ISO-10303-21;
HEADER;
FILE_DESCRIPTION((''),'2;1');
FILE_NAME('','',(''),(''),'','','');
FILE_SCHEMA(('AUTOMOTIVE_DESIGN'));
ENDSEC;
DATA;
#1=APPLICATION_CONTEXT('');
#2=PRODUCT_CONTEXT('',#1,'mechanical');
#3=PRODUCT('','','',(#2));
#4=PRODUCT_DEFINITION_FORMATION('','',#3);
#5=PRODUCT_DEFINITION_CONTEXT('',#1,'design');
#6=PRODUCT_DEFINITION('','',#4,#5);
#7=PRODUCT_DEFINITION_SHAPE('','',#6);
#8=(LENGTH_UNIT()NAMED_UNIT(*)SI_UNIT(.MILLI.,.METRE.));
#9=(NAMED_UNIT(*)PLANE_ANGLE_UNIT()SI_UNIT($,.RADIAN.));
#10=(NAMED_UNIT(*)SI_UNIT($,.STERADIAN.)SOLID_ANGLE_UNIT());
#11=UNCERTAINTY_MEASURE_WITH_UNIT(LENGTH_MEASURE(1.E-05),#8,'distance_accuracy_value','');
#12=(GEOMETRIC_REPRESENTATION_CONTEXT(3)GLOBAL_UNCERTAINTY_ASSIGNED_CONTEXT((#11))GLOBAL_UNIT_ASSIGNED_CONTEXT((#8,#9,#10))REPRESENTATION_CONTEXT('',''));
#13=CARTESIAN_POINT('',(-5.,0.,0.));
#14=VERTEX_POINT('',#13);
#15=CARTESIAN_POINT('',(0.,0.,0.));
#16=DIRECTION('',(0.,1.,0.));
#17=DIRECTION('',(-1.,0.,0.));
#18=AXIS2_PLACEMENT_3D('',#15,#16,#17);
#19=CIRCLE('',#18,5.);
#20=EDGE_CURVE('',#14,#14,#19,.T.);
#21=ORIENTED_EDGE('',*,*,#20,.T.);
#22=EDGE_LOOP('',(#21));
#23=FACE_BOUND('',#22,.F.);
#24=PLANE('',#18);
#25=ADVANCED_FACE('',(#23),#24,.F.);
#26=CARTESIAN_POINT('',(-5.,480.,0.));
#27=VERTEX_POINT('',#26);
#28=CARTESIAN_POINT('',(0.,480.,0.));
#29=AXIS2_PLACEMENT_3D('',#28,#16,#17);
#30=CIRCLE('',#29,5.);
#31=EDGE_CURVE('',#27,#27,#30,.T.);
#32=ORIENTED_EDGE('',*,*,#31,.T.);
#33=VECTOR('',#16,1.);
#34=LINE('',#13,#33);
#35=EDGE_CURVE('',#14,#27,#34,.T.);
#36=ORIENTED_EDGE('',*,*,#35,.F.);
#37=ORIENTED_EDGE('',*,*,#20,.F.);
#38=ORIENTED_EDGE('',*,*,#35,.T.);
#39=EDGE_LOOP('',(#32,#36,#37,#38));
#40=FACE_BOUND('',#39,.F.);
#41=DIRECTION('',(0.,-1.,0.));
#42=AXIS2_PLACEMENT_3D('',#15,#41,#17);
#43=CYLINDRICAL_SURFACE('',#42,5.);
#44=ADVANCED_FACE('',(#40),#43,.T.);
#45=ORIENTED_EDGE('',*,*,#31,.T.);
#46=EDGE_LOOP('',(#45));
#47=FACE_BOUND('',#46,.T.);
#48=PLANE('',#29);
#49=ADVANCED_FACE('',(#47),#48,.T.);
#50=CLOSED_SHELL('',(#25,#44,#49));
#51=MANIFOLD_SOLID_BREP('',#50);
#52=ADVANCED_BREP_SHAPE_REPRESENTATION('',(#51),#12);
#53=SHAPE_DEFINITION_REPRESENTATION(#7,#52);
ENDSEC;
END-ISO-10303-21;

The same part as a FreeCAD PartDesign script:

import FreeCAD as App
import Part
import Sketcher
from FreeCAD import Vector

doc = App.newDocument("Part")
body = doc.addObject("PartDesign::Body", "Body")

sketch1 = body.newObject("Sketcher::SketchObject", "Sketch")
sketch1.AttachmentSupport = (doc.getObject("XZ_Plane"), [""])
sketch1.MapMode = "FlatFace"
sketch1.addGeometry(Part.Circle(Vector(0, 0, 0), Vector(0, 0, 1), 5), False)
sketch1.addConstraint(Sketcher.Constraint("Coincident", 0, 3, -1, 1))
sketch1.addConstraint(Sketcher.Constraint("Diameter", 0, 10.0))
pad1 = body.newObject("PartDesign::Pad", "Pad")
pad1.Profile = sketch1
pad1.Length = 480
pad1.Reversed = True

doc.recompute()
